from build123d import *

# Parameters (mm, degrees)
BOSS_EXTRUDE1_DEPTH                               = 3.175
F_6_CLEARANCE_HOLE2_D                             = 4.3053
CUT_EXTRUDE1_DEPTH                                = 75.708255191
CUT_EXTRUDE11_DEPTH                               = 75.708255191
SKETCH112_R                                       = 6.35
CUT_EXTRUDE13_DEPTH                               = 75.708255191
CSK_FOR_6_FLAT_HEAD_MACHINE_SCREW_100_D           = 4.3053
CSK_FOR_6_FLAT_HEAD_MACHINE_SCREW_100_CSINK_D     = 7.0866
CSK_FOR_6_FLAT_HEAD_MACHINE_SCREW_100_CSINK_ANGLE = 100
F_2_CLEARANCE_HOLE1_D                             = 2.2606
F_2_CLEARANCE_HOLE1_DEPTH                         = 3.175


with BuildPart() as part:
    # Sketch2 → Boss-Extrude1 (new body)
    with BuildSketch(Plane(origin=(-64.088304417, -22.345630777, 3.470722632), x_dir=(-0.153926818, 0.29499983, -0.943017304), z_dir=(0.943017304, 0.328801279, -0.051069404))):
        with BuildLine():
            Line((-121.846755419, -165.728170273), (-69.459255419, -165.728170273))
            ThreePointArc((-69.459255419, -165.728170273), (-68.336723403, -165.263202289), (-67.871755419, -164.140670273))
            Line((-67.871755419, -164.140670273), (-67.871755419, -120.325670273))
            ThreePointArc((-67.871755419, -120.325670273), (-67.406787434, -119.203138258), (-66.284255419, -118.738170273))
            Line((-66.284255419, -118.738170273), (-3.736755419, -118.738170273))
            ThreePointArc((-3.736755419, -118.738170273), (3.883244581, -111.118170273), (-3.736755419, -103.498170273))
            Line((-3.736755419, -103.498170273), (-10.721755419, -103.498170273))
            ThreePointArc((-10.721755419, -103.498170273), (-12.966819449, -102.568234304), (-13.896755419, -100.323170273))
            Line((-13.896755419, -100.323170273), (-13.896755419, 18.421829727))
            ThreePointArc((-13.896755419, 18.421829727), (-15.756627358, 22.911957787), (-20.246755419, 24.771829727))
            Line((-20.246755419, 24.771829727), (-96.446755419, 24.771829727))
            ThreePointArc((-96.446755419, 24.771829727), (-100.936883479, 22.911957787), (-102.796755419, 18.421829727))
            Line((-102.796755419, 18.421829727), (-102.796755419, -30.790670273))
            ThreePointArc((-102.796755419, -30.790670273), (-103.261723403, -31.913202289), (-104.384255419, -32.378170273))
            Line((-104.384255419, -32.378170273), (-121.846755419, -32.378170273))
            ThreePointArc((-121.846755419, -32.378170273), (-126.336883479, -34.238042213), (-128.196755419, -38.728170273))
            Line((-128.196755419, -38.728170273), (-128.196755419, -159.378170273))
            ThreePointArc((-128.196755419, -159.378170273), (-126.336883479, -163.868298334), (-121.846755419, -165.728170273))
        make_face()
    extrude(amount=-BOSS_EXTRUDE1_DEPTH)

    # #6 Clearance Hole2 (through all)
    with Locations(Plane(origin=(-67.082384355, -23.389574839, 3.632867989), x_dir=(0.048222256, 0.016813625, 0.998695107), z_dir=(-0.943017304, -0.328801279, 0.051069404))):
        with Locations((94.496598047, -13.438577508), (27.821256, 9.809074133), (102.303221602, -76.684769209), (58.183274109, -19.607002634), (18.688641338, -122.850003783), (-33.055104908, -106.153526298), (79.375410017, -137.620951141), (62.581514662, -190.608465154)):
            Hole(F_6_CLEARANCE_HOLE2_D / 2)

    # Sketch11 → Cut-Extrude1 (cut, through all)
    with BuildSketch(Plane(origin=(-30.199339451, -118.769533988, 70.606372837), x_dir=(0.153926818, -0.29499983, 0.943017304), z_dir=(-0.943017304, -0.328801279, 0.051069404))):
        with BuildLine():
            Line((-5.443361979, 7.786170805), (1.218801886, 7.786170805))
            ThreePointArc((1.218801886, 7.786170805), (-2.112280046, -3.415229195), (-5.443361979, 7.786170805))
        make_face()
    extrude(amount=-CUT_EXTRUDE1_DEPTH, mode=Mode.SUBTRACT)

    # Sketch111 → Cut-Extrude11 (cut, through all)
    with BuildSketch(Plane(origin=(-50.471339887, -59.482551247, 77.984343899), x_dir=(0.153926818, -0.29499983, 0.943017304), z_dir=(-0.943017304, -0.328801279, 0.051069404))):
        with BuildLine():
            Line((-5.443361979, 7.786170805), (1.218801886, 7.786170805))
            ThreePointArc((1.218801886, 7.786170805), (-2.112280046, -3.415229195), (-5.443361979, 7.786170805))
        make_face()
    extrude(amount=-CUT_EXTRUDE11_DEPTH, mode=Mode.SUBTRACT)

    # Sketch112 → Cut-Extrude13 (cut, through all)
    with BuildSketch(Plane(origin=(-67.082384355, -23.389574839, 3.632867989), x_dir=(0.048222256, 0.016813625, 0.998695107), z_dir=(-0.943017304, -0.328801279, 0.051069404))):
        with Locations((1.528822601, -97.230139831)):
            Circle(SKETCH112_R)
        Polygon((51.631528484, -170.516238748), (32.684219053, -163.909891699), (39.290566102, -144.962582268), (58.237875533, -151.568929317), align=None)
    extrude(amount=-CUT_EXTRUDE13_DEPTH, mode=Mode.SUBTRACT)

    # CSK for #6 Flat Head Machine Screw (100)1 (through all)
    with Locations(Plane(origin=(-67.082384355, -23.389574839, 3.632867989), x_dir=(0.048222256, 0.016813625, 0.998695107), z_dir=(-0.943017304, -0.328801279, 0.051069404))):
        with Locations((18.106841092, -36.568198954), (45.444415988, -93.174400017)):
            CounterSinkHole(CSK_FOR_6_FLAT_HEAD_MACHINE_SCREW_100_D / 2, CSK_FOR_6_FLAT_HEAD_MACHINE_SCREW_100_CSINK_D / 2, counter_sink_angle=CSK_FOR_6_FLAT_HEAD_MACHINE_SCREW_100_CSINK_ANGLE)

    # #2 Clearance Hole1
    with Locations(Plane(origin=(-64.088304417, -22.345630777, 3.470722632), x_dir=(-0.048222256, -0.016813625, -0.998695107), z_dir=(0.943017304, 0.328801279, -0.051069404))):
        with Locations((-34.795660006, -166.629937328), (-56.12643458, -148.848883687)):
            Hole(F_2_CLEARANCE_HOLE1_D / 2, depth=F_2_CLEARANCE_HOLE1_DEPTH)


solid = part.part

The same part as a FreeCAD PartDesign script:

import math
import FreeCAD as App
import Part
import Sketcher

V = App.Vector
Q = App.Units.Quantity

doc = App.newDocument("Part")
body = doc.addObject("PartDesign::Body", "Body")

sketch1 = body.newObject("Sketcher::SketchObject", "Sketch")
sketch1.Placement = App.Placement(V(-64.088304, -22.345631, 3.470723), App.Rotation(V(-0.153926818, 0.29499983, -0.943017304), V(-0.29499983, 0.897142586, 0.328801279), V(0.943017304, 0.328801279, -0.051069404), "ZXY"))
sketch1.addGeometry([
    Part.LineSegment(V(-121.846755, -165.728171, 0), V(-69.459255, -165.728171, 0)),
    Part.ArcOfCircle(Part.Circle(V(-69.459255, -164.140671, 0), V(0, 0, 1), 1.5875), math.radians(-90), math.radians(0)),
    Part.LineSegment(V(-67.871755, -164.14067, 0), V(-67.871755, -120.32567, 0)),
    Part.ArcOfCircle(Part.Circle(V(-66.284255, -120.32567, 0), V(0, 0, 1), 1.5875), math.radians(90), math.radians(180)),
    Part.LineSegment(V(-66.284255, -118.73817, 0), V(-3.736755, -118.73817, 0)),
    Part.ArcOfCircle(Part.Circle(V(-3.736755, -111.11817, 0), V(0, 0, 1), 7.62), math.radians(-90), math.radians(90)),
    Part.LineSegment(V(-3.736755, -103.49817, 0), V(-10.721755, -103.49817, 0)),
    Part.ArcOfCircle(Part.Circle(V(-10.721755, -100.32317, 0), V(0, 0, 1), 3.175), math.radians(180), math.radians(270)),
    Part.LineSegment(V(-13.896755, -100.32317, 0), V(-13.896755, 18.42183, 0)),
    Part.ArcOfCircle(Part.Circle(V(-20.246755, 18.42183, 0), V(0, 0, 1), 6.35), math.radians(0), math.radians(90)),
    Part.LineSegment(V(-20.246755, 24.77183, 0), V(-96.446755, 24.77183, 0)),
    Part.ArcOfCircle(Part.Circle(V(-96.446755, 18.42183, 0), V(0, 0, 1), 6.35), math.radians(90), math.radians(180)),
    Part.LineSegment(V(-102.796755, 18.42183, 0), V(-102.796755, -30.79067, 0)),
    Part.ArcOfCircle(Part.Circle(V(-104.384255, -30.79067, 0), V(0, 0, 1), 1.5875), math.radians(-90), math.radians(0)),
    Part.LineSegment(V(-104.384255, -32.37817, 0), V(-121.846755, -32.37817, 0)),
    Part.ArcOfCircle(Part.Circle(V(-121.846755, -38.72817, 0), V(0, 0, 1), 6.35), math.radians(90), math.radians(180)),
    Part.LineSegment(V(-128.196756, -38.72817, 0), V(-128.196756, -159.37817, 0)),
    Part.ArcOfCircle(Part.Circle(V(-121.846755, -159.37817, 0), V(0, 0, 1), 6.35), math.radians(180), math.radians(270)),
], False)
sketch1.addConstraint([
    Sketcher.Constraint("Tangent", 0, 2, 1, 1),
    Sketcher.Constraint("Tangent", 1, 2, 2, 1),
    Sketcher.Constraint("Tangent", 2, 2, 3, 2),
    Sketcher.Constraint("Tangent", 3, 1, 4, 1),
    Sketcher.Constraint("Tangent", 4, 2, 5, 1),
    Sketcher.Constraint("Tangent", 5, 2, 6, 1),
    Sketcher.Constraint("Tangent", 6, 2, 7, 2),
    Sketcher.Constraint("Tangent", 7, 1, 8, 1),
    Sketcher.Constraint("Tangent", 8, 2, 9, 1),
    Sketcher.Constraint("Tangent", 9, 2, 10, 1),
    Sketcher.Constraint("Tangent", 10, 2, 11, 1),
    Sketcher.Constraint("Tangent", 11, 2, 12, 1),
    Sketcher.Constraint("Tangent", 12, 2, 13, 2),
    Sketcher.Constraint("Tangent", 13, 1, 14, 1),
    Sketcher.Constraint("Tangent", 14, 2, 15, 1),
    Sketcher.Constraint("Tangent", 15, 2, 16, 1),
    Sketcher.Constraint("Tangent", 16, 2, 17, 1),
    Sketcher.Constraint("Tangent", 17, 2, 0, 1),
    Sketcher.Constraint("Horizontal", 0),
    Sketcher.Constraint("Vertical", 2),
    Sketcher.Constraint("Horizontal", 4),
    Sketcher.Constraint("Horizontal", 6),
    Sketcher.Constraint("Vertical", 8),
    Sketcher.Constraint("Horizontal", 10),
    Sketcher.Constraint("Vertical", 12),
    Sketcher.Constraint("Horizontal", 14),
    Sketcher.Constraint("Vertical", 16),
    Sketcher.Constraint("Equal", 1, 3),
    Sketcher.Constraint("Equal", 9, 11),
    Sketcher.Constraint("Equal", 3, 13),
    Sketcher.Constraint("Equal", 11, 15),
    Sketcher.Constraint("Equal", 15, 17),
    Sketcher.Constraint("Radius", 5, Q("0.3 in")),
    Sketcher.Constraint("DistanceX", 10, 2, 10, 1, Q("3 in")),
    Sketcher.Constraint("Radius", 9, Q("0.25 in")),
    Sketcher.Constraint("Radius", 1, Q("0.0625 in")),
    Sketcher.Constraint("Radius", 7, Q("0.125 in")),
    Sketcher.Constraint("DistanceX", 15, 3, 11, 3, Q("1 in")),
    Sketcher.Constraint("DistanceY", 13, 1, 11, 2, Q("2 in")),
    Sketcher.Constraint("DistanceY", 16, 2, 16, 1, Q("4.75 in")),
    Sketcher.Constraint("DistanceY", 5, 3, 9, 3, Q("5.1 in")),
    Sketcher.Constraint("DistanceX", 13, 3, 3, 3, Q("1.5 in")),
    Sketcher.Constraint("DistanceX", 7, 1, 5, 2, Q("0.4 in")),
    Sketcher.Constraint("DistanceY", 1, 3, -1, 1, 164.140671),
    Sketcher.Constraint("DistanceX", 1, 3, -1, 1, 69.459255),
])
pad1 = body.newObject("PartDesign::Pad", "Pad")
pad1.Profile = sketch1
pad1.Length = Q("0.125 in")
pad1.Reversed = True

sketch2 = body.newObject("Sketcher::SketchObject", "Sketch001")
sketch2.Placement = App.Placement(V(-67.082384, -23.389575, 3.632868), App.Rotation(V(0.048222257, 0.016813625, 0.998695107), V(-0.32923089, 0.944249449, 0), V(-0.943017304, -0.328801279, 0.051069404), "ZXY"))
sketch2.addGeometry([
    Part.Circle(V(94.496598, -13.438578, 0), V(0, 0, 1), 2.15265),
    Part.Circle(V(27.821256, 9.809074, 0), V(0, 0, 1), 2.15265),
    Part.Circle(V(102.303222, -76.684769, 0), V(0, 0, 1), 2.15265),
    Part.Circle(V(58.183274, -19.607003, 0), V(0, 0, 1), 2.15265),
    Part.Circle(V(18.688641, -122.850004, 0), V(0, 0, 1), 2.15265),
    Part.Circle(V(-33.055105, -106.153526, 0), V(0, 0, 1), 2.15265),
    Part.Circle(V(79.37541, -137.620951, 0), V(0, 0, 1), 2.15265),
    Part.Circle(V(62.581515, -190.608465, 0), V(0, 0, 1), 2.15265),
], False)
sketch2.addConstraint([
    Sketcher.Constraint("Equal", 0, 1),
    Sketcher.Constraint("Equal", 1, 2),
    Sketcher.Constraint("Equal", 2, 3),
    Sketcher.Constraint("Equal", 3, 4),
    Sketcher.Constraint("Equal", 4, 5),
    Sketcher.Constraint("Equal", 5, 6),
    Sketcher.Constraint("Equal", 6, 7),
    Sketcher.Constraint("Diameter", 0, Q("0.1695 in")),
    Sketcher.Constraint("DistanceX", -1, 1, 0, 3, 94.496598),
    Sketcher.Constraint("DistanceY", 4, 3, 3, 3, 103.243001),
    Sketcher.Constraint("DistanceY", 5, 3, 1, 3, 115.962601),
    Sketcher.Constraint("DistanceX", -1, 1, 2, 3, 102.303222),
    Sketcher.Constraint("DistanceY", 2, 3, -1, 1, 76.684769),
    Sketcher.Constraint("DistanceX", -1, 1, 4, 3, 18.688641),
    Sketcher.Constraint("DistanceX", -1, 1, 6, 3, 79.37541),
    Sketcher.Constraint("DistanceY", 6, 3, -1, 1, 137.620951),
    Sketcher.Constraint("DistanceY", 0, 3, 1, 3, 23.247652),
    Sketcher.Constraint("DistanceY", 2, 3, 0, 3, 63.246192),
    Sketcher.Constraint("DistanceX", 1, 3, 3, 3, 30.362018),
    Sketcher.Constraint("DistanceY", 4, 3, 1, 3, 132.659078),
    Sketcher.Constraint("DistanceX", 5, 3, 3, 3, 91.238379),
    Sketcher.Constraint("DistanceY", 7, 3, 4, 3, 67.758461),
    Sketcher.Constraint("DistanceX", 5, 3, 7, 3, 95.63662),
    Sketcher.Constraint("DistanceX", -1, 1, 1, 3, 27.821256),
])
doc.recompute()
hole = body.newObject("PartDesign::Hole", "Hole")
hole.Profile = sketch2
hole.ThreadType = "None"
hole.Diameter = Q("0.1695 in")
hole.DepthType = "ThroughAll"

sketch3 = body.newObject("Sketcher::SketchObject", "Sketch002")
sketch3.Placement = App.Placement(V(-30.199339, -118.769534, 70.606373), App.Rotation(V(0.153926818, -0.29499983, 0.943017304), V(-0.29499983, 0.897142586, 0.328801279), V(-0.943017304, -0.328801279, 0.051069404), "ZXY"))
sketch3.addGeometry([
    Part.LineSegment(V(1.218802, 7.786171, 0), V(-5.443362, 7.786171, 0)),
    Part.ArcOfCircle(Part.Circle(V(-2.11228, 2.680771, 0), V(0, 0, 1), 6.096), math.radians(123.12294), math.radians(416.87706)),
], False)
sketch3.addConstraint([
    Sketcher.Constraint("Coincident", 0, 1, 1, 2),
    Sketcher.Constraint("Coincident", 1, 1, 0, 2),
    Sketcher.Constraint("Horizontal", 0),
    Sketcher.Constraint("Radius", 1, Q("0.24 in")),
    Sketcher.Constraint("DistanceY", 1, 3, 0, 1, Q("0.201 in")),
    Sketcher.Constraint("DistanceX", -1, 1, 0, 1, 1.218802),
    Sketcher.Constraint("DistanceY", -1, 1, 1, 3, 2.680771),
])
pocket1 = body.newObject("PartDesign::Pocket", "Pocket")
pocket1.Profile = sketch3
pocket1.Type = "ThroughAll"

sketch4 = body.newObject("Sketcher::SketchObject", "Sketch003")
sketch4.Placement = App.Placement(V(-50.47134, -59.482551, 77.984344), App.Rotation(V(0.153926818, -0.29499983, 0.943017304), V(-0.29499983, 0.897142586, 0.328801279), V(-0.943017304, -0.328801279, 0.051069404), "ZXY"))
sketch4.addGeometry([
    Part.LineSegment(V(1.218802, 7.786171, 0), V(-5.443362, 7.786171, 0)),
    Part.ArcOfCircle(Part.Circle(V(-2.11228, 2.680771, 0), V(0, 0, 1), 6.096), math.radians(123.12294), math.radians(416.87706)),
], False)
sketch4.addConstraint([
    Sketcher.Constraint("Coincident", 0, 1, 1, 2),
    Sketcher.Constraint("Coincident", 1, 1, 0, 2),
    Sketcher.Constraint("Horizontal", 0),
    Sketcher.Constraint("Radius", 1, Q("0.24 in")),
    Sketcher.Constraint("DistanceY", 1, 3, 0, 1, Q("0.201 in")),
    Sketcher.Constraint("DistanceX", -1, 1, 0, 1, 1.218802),
    Sketcher.Constraint("DistanceY", -1, 1, 1, 3, 2.680771),
])
pocket2 = body.newObject("PartDesign::Pocket", "Pocket001")
pocket2.Profile = sketch4
pocket2.Type = "ThroughAll"

sketch5 = body.newObject("Sketcher::SketchObject", "Sketch004")
sketch5.Placement = App.Placement(V(-67.082384, -23.389575, 3.632868), App.Rotation(V(0.048222257, 0.016813625, 0.998695107), V(-0.32923089, 0.944249449, 0), V(-0.943017304, -0.328801279, 0.051069404), "ZXY"))
sketch5.addGeometry([
    Part.Circle(V(1.528823, -97.23014, 0), V(0, 0, 1), 6.35),
    Part.LineSegment(V(32.684219, -163.909892, 0), V(51.631529, -170.516239, 0)),
    Part.LineSegment(V(51.631529, -170.516239, 0), V(58.237876, -151.56893, 0)),
    Part.LineSegment(V(58.237876, -151.56893, 0), V(39.290566, -144.962582, 0)),
    Part.LineSegment(V(39.290566, -144.962582, 0), V(32.684219, -163.909892, 0)),
], False)
sketch5.addConstraint([
    Sketcher.Constraint("Coincident", 1, 2, 2, 1),
    Sketcher.Constraint("Coincident", 2, 2, 3, 1),
    Sketcher.Constraint("Coincident", 3, 2, 4, 1),
    Sketcher.Constraint("Coincident", 4, 2, 1, 1),
    Sketcher.Constraint("Perpendicular", 1, 2),
    Sketcher.Constraint("Perpendicular", 2, 3),
    Sketcher.Constraint("Perpendicular", 3, 4),
    Sketcher.Constraint("Equal", 1, 2),
    Sketcher.Constraint("Diameter", 0, Q("0.5 in")),
    Sketcher.Constraint("Distance", 1, Q("0.79 in")),
    Sketcher.Constraint("DistanceY", 1, 2, 0, 3, 73.286099),
    Sketcher.Constraint("DistanceY", 0, 3, -1, 1, 97.23014),
    Sketcher.Constraint("DistanceX", -1, 1, 1, 2, 51.631529),
    Sketcher.Constraint("DistanceY", 2, 2, -1, 1, 151.56893),
    Sketcher.Constraint("DistanceX", -1, 1, 0, 3, 1.528823),
])
pocket3 = body.newObject("PartDesign::Pocket", "Pocket002")
pocket3.Profile = sketch5
pocket3.Type = "ThroughAll"

sketch6 = body.newObject("Sketcher::SketchObject", "Sketch005")
sketch6.Placement = App.Placement(V(-67.082384, -23.389575, 3.632868), App.Rotation(V(0.048222257, 0.016813625, 0.998695107), V(-0.32923089, 0.944249449, 0), V(-0.943017304, -0.328801279, 0.051069404), "ZXY"))
sketch6.addGeometry([
    Part.Circle(V(18.106841, -36.568199, 0), V(0, 0, 1), 2.15265),
    Part.Circle(V(45.444416, -93.1744, 0), V(0, 0, 1), 2.15265),
], False)
sketch6.addConstraint([
    Sketcher.Constraint("Equal", 0, 1),
    Sketcher.Constraint("Diameter", 0, Q("0.1695 in")),
    Sketcher.Constraint("DistanceY", 0, 3, -1, 1, 36.568199),
    Sketcher.Constraint("DistanceY", 1, 3, -1, 1, 93.1744),
    Sketcher.Constraint("DistanceX", -1, 1, 0, 3, 18.106841),
    Sketcher.Constraint("DistanceX", -1, 1, 1, 3, 45.444416),
])
doc.recompute()
hole2 = body.newObject("PartDesign::Hole", "Hole001")
hole2.Profile = sketch6
hole2.ThreadType = "None"
hole2.Diameter = Q("0.1695 in")
hole2.DepthType = "ThroughAll"
hole2.HoleCutType = "Countersink"
hole2.HoleCutDiameter = Q("0.279 in")
hole2.HoleCutCountersinkAngle = 100

sketch7 = body.newObject("Sketcher::SketchObject", "Sketch006")
sketch7.Placement = App.Placement(V(-64.088304, -22.345631, 3.470723), App.Rotation(V(-0.048222257, -0.016813625, -0.998695107), V(-0.32923089, 0.944249449, 0), V(0.943017304, 0.328801279, -0.051069404), "ZXY"))
sketch7.addGeometry([
    Part.Circle(V(-34.79566, -166.629938, 0), V(0, 0, 1), 1.1303),
    Part.Circle(V(-56.126435, -148.848884, 0), V(0, 0, 1), 1.1303),
], False)
sketch7.addConstraint([
    Sketcher.Constraint("Equal", 0, 1),
    Sketcher.Constraint("Diameter", 0, Q("0.089 in")),
    Sketcher.Constraint("DistanceX", 0, 3, -1, 1, 34.79566),
    Sketcher.Constraint("DistanceY", 0, 3, -1, 1, 166.629938),
    Sketcher.Constraint("DistanceX", 1, 3, -1, 1, 56.126435),
    Sketcher.Constraint("DistanceY", 1, 3, -1, 1, 148.848884),
])
doc.recompute()
hole3 = body.newObject("PartDesign::Hole", "Hole002")
hole3.Profile = sketch7
hole3.ThreadType = "None"
hole3.Diameter = Q("0.089 in")
hole3.DepthType = "Dimension"
hole3.Depth = Q("0.125 in")
hole3.DrillPoint = "Flat"

doc.recompute()
